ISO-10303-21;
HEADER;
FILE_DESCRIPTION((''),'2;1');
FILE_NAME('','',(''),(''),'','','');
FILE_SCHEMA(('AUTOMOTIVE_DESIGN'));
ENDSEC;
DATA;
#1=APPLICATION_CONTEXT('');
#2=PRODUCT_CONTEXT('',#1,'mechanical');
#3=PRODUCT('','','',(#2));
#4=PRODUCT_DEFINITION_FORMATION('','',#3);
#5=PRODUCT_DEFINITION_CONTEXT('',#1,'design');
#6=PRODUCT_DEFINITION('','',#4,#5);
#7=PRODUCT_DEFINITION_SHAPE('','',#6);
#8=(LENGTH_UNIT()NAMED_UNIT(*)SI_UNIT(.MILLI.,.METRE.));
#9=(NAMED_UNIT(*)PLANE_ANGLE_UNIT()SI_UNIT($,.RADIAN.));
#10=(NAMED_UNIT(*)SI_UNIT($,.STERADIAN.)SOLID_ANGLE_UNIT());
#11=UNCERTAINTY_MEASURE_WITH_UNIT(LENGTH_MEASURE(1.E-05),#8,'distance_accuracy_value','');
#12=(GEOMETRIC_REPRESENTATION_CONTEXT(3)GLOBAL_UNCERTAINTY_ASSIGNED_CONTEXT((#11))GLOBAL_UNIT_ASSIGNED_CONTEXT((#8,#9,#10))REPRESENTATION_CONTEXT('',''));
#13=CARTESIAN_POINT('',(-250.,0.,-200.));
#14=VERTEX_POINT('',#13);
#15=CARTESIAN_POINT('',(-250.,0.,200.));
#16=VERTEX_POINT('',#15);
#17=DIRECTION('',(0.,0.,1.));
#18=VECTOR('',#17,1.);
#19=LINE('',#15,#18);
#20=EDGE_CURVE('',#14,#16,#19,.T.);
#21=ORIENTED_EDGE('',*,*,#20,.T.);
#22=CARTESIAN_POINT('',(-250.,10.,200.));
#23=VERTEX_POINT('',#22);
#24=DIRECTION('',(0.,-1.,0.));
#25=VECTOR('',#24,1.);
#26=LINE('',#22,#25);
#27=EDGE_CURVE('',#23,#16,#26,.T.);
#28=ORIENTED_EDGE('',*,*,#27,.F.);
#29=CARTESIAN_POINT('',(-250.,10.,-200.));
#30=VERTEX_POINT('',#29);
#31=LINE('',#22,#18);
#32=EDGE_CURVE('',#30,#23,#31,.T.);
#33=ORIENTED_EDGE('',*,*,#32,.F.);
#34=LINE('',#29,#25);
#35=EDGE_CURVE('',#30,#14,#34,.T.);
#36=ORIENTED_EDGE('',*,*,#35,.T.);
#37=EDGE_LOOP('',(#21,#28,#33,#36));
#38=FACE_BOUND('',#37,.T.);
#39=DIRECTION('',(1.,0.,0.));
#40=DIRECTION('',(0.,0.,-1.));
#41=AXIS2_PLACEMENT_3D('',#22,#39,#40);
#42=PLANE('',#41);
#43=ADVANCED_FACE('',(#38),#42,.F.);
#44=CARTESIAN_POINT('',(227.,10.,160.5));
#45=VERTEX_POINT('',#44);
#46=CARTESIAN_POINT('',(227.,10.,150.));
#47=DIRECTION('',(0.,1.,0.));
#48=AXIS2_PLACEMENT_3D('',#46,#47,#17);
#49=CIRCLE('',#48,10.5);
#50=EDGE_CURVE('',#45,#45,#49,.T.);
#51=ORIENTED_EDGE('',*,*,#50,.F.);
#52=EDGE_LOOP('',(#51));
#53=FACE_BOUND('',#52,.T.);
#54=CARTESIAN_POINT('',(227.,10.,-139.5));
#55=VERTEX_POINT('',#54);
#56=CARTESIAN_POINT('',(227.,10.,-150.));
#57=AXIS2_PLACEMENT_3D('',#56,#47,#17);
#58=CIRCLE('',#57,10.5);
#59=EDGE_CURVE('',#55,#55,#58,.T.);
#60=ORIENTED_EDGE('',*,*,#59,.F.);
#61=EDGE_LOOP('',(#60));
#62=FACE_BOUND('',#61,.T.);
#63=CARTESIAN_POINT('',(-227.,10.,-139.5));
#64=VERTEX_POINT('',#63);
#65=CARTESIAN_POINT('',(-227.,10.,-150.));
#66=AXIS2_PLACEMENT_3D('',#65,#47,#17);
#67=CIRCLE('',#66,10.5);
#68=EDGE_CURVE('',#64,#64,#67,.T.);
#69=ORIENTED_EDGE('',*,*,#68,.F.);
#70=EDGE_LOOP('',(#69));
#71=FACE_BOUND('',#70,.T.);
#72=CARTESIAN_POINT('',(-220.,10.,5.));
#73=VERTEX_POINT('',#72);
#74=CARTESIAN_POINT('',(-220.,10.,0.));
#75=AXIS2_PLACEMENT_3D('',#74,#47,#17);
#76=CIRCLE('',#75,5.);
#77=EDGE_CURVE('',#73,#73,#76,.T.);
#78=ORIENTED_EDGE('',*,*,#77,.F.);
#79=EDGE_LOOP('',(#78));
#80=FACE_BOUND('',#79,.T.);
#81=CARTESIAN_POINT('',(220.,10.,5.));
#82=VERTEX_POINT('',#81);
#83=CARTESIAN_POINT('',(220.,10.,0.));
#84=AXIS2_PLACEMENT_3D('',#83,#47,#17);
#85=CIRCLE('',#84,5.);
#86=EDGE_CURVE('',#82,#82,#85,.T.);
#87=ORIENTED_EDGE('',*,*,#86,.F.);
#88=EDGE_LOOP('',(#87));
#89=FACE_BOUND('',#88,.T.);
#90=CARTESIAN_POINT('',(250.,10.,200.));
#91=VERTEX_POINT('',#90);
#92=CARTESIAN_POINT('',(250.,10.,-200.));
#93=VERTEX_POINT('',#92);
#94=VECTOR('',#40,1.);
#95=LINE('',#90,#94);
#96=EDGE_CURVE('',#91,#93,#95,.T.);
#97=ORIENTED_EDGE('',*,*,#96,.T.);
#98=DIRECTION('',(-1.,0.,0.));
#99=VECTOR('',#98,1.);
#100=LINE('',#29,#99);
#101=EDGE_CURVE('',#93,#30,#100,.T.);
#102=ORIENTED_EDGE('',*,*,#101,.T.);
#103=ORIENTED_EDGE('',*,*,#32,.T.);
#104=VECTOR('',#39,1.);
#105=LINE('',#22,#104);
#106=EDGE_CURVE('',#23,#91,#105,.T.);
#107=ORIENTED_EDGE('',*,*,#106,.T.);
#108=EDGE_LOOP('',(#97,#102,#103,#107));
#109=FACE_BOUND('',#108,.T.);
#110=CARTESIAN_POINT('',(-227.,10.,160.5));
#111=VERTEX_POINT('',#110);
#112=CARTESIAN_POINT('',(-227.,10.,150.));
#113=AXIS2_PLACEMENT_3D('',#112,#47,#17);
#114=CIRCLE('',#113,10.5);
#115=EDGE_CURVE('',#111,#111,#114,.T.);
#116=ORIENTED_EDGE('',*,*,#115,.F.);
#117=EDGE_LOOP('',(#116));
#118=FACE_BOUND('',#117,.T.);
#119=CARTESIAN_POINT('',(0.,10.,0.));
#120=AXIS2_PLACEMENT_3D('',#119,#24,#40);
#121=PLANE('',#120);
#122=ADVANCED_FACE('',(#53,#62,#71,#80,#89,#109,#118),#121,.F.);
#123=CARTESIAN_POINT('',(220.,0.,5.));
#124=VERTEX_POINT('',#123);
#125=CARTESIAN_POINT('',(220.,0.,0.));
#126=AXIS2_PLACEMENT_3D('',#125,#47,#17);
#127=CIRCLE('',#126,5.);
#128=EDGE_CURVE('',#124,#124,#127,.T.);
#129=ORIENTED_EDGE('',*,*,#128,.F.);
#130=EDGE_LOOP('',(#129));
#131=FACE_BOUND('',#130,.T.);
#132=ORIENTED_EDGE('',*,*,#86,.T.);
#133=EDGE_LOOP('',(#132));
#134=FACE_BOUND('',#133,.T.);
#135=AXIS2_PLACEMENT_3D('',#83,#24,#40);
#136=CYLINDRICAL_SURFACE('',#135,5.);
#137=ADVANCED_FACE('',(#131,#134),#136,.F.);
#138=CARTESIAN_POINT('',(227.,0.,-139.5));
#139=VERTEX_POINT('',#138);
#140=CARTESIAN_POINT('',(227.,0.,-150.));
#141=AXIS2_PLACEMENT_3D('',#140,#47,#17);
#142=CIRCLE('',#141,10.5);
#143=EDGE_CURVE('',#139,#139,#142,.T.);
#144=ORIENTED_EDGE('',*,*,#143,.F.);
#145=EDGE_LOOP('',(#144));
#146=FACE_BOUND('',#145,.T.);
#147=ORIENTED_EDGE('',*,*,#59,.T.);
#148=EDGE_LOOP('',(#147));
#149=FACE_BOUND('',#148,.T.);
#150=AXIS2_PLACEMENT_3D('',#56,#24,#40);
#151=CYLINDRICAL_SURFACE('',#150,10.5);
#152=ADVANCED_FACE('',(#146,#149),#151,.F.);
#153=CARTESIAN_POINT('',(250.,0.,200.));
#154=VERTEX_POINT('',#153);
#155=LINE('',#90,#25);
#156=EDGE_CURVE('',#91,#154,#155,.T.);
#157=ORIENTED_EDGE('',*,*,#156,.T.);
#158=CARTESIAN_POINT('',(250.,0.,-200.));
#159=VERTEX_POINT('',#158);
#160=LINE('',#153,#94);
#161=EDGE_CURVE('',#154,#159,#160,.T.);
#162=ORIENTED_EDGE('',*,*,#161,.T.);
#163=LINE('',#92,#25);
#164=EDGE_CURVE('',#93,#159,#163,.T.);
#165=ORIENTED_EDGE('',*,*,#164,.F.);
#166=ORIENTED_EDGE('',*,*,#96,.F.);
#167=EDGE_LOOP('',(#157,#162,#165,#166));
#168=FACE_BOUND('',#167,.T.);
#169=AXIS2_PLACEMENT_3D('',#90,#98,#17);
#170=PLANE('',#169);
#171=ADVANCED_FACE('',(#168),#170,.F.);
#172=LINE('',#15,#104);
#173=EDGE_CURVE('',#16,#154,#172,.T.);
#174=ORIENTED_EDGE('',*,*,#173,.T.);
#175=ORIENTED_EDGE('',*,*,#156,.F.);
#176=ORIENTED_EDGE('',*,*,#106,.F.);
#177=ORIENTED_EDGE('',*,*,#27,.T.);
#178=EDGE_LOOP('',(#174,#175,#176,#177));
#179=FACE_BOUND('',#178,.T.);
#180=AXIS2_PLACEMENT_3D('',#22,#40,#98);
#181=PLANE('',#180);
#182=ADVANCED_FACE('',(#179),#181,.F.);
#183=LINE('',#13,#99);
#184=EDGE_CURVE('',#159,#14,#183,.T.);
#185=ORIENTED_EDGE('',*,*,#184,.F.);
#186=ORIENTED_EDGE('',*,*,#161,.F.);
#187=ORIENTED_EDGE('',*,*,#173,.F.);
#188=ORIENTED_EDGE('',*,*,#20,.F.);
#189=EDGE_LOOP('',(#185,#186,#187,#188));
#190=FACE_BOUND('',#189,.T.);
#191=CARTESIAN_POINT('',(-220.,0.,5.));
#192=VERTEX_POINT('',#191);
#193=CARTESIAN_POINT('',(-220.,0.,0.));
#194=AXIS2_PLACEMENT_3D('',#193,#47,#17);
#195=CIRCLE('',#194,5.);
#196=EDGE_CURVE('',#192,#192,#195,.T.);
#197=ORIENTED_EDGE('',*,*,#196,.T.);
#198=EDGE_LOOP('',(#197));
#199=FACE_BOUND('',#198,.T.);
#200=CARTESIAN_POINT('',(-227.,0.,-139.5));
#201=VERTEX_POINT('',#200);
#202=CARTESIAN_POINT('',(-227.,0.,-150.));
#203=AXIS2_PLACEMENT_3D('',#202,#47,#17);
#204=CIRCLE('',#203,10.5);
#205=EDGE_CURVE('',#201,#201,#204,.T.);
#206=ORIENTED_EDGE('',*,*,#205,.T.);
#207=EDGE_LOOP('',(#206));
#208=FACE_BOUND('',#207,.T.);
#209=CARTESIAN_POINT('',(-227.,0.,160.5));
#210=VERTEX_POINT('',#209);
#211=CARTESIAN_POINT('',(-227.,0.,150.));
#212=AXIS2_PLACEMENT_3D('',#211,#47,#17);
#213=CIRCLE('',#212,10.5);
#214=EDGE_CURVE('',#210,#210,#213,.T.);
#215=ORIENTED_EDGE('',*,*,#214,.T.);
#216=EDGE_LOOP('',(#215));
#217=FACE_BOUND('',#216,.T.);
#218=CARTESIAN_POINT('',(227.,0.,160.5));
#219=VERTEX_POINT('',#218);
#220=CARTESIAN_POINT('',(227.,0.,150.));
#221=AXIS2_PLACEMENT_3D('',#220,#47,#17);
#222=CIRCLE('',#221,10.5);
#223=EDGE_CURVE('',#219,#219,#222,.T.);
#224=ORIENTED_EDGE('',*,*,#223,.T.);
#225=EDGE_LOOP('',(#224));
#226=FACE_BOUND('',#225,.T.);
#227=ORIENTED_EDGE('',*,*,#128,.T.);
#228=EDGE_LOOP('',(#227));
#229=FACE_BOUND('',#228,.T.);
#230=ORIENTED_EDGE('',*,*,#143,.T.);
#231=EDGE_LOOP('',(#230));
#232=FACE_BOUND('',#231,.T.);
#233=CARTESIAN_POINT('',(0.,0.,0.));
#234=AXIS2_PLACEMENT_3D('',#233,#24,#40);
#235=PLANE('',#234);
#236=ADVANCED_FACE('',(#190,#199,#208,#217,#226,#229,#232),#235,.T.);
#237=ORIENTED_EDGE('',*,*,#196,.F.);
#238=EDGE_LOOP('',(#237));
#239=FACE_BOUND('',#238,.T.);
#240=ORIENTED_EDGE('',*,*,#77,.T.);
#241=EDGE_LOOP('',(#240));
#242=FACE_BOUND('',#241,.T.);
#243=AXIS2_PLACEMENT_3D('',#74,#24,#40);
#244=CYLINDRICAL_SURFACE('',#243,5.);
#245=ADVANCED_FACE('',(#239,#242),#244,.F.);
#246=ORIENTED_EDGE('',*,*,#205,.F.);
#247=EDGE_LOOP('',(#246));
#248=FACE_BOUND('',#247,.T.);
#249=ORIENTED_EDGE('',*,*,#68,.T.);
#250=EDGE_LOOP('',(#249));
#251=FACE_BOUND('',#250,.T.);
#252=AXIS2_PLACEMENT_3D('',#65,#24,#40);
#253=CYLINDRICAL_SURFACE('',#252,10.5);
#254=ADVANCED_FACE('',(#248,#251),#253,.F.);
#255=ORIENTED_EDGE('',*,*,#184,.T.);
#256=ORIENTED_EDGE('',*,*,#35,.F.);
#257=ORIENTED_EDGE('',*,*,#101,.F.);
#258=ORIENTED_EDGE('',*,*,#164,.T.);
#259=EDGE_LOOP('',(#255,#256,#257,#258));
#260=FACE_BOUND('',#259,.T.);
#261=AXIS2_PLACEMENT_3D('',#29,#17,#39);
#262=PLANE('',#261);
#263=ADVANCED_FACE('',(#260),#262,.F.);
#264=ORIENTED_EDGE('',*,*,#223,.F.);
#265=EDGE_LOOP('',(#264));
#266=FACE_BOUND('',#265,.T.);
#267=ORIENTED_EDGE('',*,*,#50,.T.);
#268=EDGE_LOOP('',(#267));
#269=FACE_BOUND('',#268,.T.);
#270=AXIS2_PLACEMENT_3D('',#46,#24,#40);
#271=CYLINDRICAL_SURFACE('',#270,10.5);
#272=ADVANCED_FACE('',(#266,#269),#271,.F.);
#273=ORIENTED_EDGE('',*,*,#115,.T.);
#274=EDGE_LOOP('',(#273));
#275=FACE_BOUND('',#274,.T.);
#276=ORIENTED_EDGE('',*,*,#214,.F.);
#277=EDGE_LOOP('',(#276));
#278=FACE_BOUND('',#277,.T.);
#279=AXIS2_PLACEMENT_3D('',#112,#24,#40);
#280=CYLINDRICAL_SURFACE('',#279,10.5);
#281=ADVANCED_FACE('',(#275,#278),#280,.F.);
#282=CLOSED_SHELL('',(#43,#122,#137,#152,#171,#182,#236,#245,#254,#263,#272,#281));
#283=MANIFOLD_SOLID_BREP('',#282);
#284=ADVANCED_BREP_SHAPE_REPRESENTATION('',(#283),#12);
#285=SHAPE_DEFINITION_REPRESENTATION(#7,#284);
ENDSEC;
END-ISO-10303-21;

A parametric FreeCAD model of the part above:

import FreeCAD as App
import Part
import Sketcher

V = App.Vector
Q = App.Units.Quantity

doc = App.newDocument("Part")
params = doc.addObject("Spreadsheet::Sheet", "Params")
for row, (alias, value) in enumerate([
    ("sketch1_diameter", "21 mm"),
    ("sketch1_diameter2", "10 mm"),
    ("sketch1_width", "500 mm"),
    ("sketch1_height", "400 mm"),
    ("pad1_length", "10 mm"),
], start=1):
    params.set(f"A{row}", alias)
    params.set(f"B{row}", "=" + value)
    params.setAlias(f"B{row}", alias)

body = doc.addObject("PartDesign::Body", "Body")

# Sketch on XZ plane
sketch1 = doc.addObject("Sketcher::SketchObject", "Sketch")
body.addObject(sketch1)
sketch1.AttachmentSupport = (doc.XZ_Plane, [""])
sketch1.MapMode = "FlatFace"
sketch1.addGeometry(Part.LineSegment(V(-250, -200, 0), V(-250, 200, 0)), False)
sketch1.addGeometry(Part.LineSegment(V(-250, 200, 0), V(250, 200, 0)), False)
sketch1.addGeometry(Part.LineSegment(V(250, 200, 0), V(250, -200, 0)), False)
sketch1.addGeometry(Part.LineSegment(V(250, -200, 0), V(-250, -200, 0)), False)
sketch1.addGeometry(Part.Circle(V(-227, 150, 0), V(0, 0, 1), 10.5), False)
sketch1.addGeometry(Part.Circle(V(227, 150, 0), V(0, 0, 1), 10.5), False)
sketch1.addGeometry(Part.Circle(V(-220, 0, 0), V(0, 0, 1), 5), False)
sketch1.addGeometry(Part.Circle(V(-227, -150, 0), V(0, 0, 1), 10.5), False)
sketch1.addGeometry(Part.Circle(V(220, 0, 0), V(0, 0, 1), 5), False)
sketch1.addGeometry(Part.Circle(V(227, -150, 0), V(0, 0, 1), 10.5), False)
sketch1.addConstraint(Sketcher.Constraint("Coincident", 0, 2, 1, 1))
sketch1.addConstraint(Sketcher.Constraint("Coincident", 1, 2, 2, 1))
sketch1.addConstraint(Sketcher.Constraint("Coincident", 2, 2, 3, 1))
sketch1.addConstraint(Sketcher.Constraint("Coincident", 3, 2, 0, 1))
sketch1.addConstraint(Sketcher.Constraint("Vertical", 0))
sketch1.addConstraint(Sketcher.Constraint("Horizontal", 1))
sketch1.addConstraint(Sketcher.Constraint("Vertical", 2))
sketch1.addConstraint(Sketcher.Constraint("Horizontal", 3))
sketch1.addConstraint(Sketcher.Constraint("Equal", 4, 5))
sketch1.addConstraint(Sketcher.Constraint("Equal", 5, 7))
sketch1.addConstraint(Sketcher.Constraint("Equal", 6, 8))
sketch1.addConstraint(Sketcher.Constraint("Equal", 7, 9))
sketch1.addConstraint(Sketcher.Constraint("Symmetric", 5, 3, 7, 3, -1, 1))
sketch1.addConstraint(Sketcher.Constraint("Symmetric", 6, 3, 8, 3, -1, 1))
sketch1.addConstraint(Sketcher.Constraint("Symmetric", 4, 3, 9, 3, -1, 1))
sketch1.addConstraint(Sketcher.Constraint("Symmetric", 0, 2, 2, 2, -1, 1))
sketch1.addConstraint(Sketcher.Constraint("Symmetric", 4, 3, 5, 3, -2))
sketch1.addConstraint(Sketcher.Constraint("PointOnObject", 6, 3, -1))
sketch1.addConstraint(Sketcher.Constraint("Diameter", 4, Q("21 mm")))
sketch1.addConstraint(Sketcher.Constraint("Diameter", 6, Q("10 mm")))
sketch1.addConstraint(Sketcher.Constraint("DistanceX", 1, 1, 1, 2, Q("500 mm")))
sketch1.addConstraint(Sketcher.Constraint("DistanceY", 0, 1, 0, 2, Q("400 mm")))
sketch1.addConstraint(Sketcher.Constraint("DistanceX", 4, 3, -1, 1, Q("227 mm")))
sketch1.addConstraint(Sketcher.Constraint("DistanceY", -1, 1, 4, 3, Q("150 mm")))
sketch1.addConstraint(Sketcher.Constraint("DistanceX", 6, 3, -1, 1, Q("220 mm")))
sketch1.setExpression("Constraints[18]", "Params.sketch1_diameter")
sketch1.setExpression("Constraints[19]", "Params.sketch1_diameter2")
sketch1.setExpression("Constraints[20]", "Params.sketch1_width")
sketch1.setExpression("Constraints[21]", "Params.sketch1_height")
pad1 = doc.addObject("PartDesign::Pad", "Pad")
body.addObject(pad1)
pad1.Profile = sketch1
pad1.setExpression("Length", "Params.pad1_length")
pad1.Reversed = True

doc.recompute()
